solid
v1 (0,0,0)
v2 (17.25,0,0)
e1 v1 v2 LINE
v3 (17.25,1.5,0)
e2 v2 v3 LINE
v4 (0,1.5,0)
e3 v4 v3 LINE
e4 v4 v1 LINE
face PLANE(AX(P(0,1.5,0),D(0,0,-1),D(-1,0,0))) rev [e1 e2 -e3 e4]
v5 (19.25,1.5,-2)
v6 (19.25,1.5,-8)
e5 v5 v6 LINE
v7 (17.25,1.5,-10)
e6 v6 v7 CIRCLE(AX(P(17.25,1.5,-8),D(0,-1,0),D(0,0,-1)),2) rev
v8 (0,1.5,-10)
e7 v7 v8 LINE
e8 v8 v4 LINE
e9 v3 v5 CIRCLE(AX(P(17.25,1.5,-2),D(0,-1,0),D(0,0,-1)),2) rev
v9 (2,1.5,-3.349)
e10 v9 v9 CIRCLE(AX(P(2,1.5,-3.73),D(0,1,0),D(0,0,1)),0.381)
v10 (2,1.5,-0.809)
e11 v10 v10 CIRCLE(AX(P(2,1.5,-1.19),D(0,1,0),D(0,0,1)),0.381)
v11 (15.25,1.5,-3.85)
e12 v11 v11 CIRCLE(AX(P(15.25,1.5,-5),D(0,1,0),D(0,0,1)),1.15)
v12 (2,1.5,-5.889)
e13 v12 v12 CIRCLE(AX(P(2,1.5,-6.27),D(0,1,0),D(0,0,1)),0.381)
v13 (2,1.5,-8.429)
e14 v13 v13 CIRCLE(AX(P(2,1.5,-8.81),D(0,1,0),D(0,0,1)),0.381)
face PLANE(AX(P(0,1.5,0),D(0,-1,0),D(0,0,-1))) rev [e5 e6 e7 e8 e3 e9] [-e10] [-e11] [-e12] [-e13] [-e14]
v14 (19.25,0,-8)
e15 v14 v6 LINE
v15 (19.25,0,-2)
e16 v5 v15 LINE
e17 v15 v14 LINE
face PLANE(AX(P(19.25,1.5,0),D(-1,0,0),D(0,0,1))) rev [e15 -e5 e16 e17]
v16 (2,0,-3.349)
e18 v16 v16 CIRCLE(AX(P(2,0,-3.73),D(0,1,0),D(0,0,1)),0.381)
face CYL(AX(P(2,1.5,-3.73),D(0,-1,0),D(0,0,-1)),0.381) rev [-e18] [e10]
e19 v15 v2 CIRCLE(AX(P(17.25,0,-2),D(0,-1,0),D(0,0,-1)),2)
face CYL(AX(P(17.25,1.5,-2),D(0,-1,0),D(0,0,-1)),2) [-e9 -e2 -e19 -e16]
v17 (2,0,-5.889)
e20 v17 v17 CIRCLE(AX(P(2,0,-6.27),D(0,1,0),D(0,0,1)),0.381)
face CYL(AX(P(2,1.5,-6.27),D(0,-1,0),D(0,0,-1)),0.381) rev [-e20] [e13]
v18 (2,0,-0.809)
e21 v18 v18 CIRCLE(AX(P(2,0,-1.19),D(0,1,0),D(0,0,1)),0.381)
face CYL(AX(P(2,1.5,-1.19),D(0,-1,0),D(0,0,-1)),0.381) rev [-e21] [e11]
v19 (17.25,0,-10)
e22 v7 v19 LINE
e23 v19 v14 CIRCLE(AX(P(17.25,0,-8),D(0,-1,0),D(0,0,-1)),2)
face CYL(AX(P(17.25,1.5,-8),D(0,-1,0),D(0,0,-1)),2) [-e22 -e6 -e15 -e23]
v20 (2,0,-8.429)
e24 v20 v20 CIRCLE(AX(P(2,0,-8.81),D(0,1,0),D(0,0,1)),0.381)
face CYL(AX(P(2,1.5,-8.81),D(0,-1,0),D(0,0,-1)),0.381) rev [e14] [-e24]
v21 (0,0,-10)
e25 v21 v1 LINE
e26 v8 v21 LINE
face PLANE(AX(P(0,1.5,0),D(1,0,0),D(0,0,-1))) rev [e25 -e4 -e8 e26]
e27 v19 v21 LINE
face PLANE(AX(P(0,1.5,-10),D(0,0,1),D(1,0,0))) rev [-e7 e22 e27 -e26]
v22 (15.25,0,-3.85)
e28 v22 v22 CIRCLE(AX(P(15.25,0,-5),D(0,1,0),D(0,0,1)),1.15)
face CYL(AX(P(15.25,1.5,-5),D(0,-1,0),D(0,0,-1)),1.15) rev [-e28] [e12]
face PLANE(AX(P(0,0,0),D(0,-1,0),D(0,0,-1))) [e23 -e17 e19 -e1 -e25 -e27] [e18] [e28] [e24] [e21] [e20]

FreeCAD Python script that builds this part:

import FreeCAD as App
import Part
import Sketcher

V = App.Vector


def edges_at(feature, points):
    """Names of the edges that pass closest to the given points."""
    edges = feature.Shape.Edges
    near = lambda p: min(range(len(edges)), key=lambda i: edges[i].distToShape(Part.Vertex(*p))[0])
    return sorted({f"Edge{near(p) + 1}" for p in points})


def add_polygon(sketch, points):
    """Adds a closed chain of lines whose ends are joined by coincident constraints."""
    first, n = sketch.GeometryCount, len(points)
    for a, b in zip(points, points[1:] + points[:1]):
        sketch.addGeometry(Part.LineSegment(App.Vector(*a, 0), App.Vector(*b, 0)), False)
    for i in range(n):
        sketch.addConstraint(Sketcher.Constraint("Coincident", first + i, 2, first + (i + 1) % n, 1))

doc = App.newDocument("Part")
body = doc.addObject("PartDesign::Body", "Body")

sketch1 = body.newObject("Sketcher::SketchObject", "Sketch")
sketch1.AttachmentSupport = (doc.getObject("XZ_Plane"), [""])
sketch1.MapMode = "FlatFace"
add_polygon(sketch1, [(0, -10), (0, 0), (19.25, 0), (19.25, -10)])
sketch1.addGeometry(Part.Circle(V(2, -1.19, 0), V(0, 0, 1), 0.38), False)
sketch1.addGeometry(Part.Circle(V(2, -3.73, 0), V(0, 0, 1), 0.38), False)
sketch1.addGeometry(Part.Circle(V(15.25, -5, 0), V(0, 0, 1), 1.15), False)
sketch1.addGeometry(Part.Circle(V(2, -6.27, 0), V(0, 0, 1), 0.38), False)
sketch1.addGeometry(Part.Circle(V(2, -8.81, 0), V(0, 0, 1), 0.38), False)
sketch1.addConstraint([
    Sketcher.Constraint("Vertical", 0),
    Sketcher.Constraint("Horizontal", 1),
    Sketcher.Constraint("Vertical", 2),
    Sketcher.Constraint("Horizontal", 3),
    Sketcher.Constraint("Coincident", 0, 2, -1, 1),
    Sketcher.Constraint("Equal", 4, 5),
    Sketcher.Constraint("Equal", 5, 7),
    Sketcher.Constraint("Equal", 7, 8),
    Sketcher.Constraint("Vertical", 4, 3, 5, 3),
    Sketcher.Constraint("Vertical", 5, 3, 7, 3),
    Sketcher.Constraint("Vertical", 7, 3, 8, 3),
    Sketcher.Constraint("Diameter", 6, 2.3),
    Sketcher.Constraint("DistanceY", 0, 1, 0, 2, 10.0),
    Sketcher.Constraint("Diameter", 4, 0.762),
    Sketcher.Constraint("DistanceX", -1, 1, 4, 3, 2.0),
    Sketcher.Constraint("DistanceY", 6, 3, -1, 1, 5.0),
    Sketcher.Constraint("DistanceX", 6, 3, 1, 2, 4.0),
    Sketcher.Constraint("DistanceX", 1, 1, 1, 2, 19.25),
    Sketcher.Constraint("DistanceY", 4, 3, -1, 1, 1.19),
    Sketcher.Constraint("DistanceY", 5, 3, -1, 1, 3.73),
    Sketcher.Constraint("DistanceY", 7, 3, -1, 1, 6.27),
    Sketcher.Constraint("DistanceY", 8, 3, -1, 1, 8.81),
])
pad1 = body.newObject("PartDesign::Pad", "Pad")
pad1.Profile = sketch1
pad1.Length = 1.5
pad1.Reversed = True
doc.recompute()

fillet = body.newObject("PartDesign::Fillet", "Fillet")
fillet.Base = (pad1, edges_at(pad1, [(19.25, 0.75, -10), (19.25, 0.75, 0)]))
fillet.Radius = 2

doc.recompute()
